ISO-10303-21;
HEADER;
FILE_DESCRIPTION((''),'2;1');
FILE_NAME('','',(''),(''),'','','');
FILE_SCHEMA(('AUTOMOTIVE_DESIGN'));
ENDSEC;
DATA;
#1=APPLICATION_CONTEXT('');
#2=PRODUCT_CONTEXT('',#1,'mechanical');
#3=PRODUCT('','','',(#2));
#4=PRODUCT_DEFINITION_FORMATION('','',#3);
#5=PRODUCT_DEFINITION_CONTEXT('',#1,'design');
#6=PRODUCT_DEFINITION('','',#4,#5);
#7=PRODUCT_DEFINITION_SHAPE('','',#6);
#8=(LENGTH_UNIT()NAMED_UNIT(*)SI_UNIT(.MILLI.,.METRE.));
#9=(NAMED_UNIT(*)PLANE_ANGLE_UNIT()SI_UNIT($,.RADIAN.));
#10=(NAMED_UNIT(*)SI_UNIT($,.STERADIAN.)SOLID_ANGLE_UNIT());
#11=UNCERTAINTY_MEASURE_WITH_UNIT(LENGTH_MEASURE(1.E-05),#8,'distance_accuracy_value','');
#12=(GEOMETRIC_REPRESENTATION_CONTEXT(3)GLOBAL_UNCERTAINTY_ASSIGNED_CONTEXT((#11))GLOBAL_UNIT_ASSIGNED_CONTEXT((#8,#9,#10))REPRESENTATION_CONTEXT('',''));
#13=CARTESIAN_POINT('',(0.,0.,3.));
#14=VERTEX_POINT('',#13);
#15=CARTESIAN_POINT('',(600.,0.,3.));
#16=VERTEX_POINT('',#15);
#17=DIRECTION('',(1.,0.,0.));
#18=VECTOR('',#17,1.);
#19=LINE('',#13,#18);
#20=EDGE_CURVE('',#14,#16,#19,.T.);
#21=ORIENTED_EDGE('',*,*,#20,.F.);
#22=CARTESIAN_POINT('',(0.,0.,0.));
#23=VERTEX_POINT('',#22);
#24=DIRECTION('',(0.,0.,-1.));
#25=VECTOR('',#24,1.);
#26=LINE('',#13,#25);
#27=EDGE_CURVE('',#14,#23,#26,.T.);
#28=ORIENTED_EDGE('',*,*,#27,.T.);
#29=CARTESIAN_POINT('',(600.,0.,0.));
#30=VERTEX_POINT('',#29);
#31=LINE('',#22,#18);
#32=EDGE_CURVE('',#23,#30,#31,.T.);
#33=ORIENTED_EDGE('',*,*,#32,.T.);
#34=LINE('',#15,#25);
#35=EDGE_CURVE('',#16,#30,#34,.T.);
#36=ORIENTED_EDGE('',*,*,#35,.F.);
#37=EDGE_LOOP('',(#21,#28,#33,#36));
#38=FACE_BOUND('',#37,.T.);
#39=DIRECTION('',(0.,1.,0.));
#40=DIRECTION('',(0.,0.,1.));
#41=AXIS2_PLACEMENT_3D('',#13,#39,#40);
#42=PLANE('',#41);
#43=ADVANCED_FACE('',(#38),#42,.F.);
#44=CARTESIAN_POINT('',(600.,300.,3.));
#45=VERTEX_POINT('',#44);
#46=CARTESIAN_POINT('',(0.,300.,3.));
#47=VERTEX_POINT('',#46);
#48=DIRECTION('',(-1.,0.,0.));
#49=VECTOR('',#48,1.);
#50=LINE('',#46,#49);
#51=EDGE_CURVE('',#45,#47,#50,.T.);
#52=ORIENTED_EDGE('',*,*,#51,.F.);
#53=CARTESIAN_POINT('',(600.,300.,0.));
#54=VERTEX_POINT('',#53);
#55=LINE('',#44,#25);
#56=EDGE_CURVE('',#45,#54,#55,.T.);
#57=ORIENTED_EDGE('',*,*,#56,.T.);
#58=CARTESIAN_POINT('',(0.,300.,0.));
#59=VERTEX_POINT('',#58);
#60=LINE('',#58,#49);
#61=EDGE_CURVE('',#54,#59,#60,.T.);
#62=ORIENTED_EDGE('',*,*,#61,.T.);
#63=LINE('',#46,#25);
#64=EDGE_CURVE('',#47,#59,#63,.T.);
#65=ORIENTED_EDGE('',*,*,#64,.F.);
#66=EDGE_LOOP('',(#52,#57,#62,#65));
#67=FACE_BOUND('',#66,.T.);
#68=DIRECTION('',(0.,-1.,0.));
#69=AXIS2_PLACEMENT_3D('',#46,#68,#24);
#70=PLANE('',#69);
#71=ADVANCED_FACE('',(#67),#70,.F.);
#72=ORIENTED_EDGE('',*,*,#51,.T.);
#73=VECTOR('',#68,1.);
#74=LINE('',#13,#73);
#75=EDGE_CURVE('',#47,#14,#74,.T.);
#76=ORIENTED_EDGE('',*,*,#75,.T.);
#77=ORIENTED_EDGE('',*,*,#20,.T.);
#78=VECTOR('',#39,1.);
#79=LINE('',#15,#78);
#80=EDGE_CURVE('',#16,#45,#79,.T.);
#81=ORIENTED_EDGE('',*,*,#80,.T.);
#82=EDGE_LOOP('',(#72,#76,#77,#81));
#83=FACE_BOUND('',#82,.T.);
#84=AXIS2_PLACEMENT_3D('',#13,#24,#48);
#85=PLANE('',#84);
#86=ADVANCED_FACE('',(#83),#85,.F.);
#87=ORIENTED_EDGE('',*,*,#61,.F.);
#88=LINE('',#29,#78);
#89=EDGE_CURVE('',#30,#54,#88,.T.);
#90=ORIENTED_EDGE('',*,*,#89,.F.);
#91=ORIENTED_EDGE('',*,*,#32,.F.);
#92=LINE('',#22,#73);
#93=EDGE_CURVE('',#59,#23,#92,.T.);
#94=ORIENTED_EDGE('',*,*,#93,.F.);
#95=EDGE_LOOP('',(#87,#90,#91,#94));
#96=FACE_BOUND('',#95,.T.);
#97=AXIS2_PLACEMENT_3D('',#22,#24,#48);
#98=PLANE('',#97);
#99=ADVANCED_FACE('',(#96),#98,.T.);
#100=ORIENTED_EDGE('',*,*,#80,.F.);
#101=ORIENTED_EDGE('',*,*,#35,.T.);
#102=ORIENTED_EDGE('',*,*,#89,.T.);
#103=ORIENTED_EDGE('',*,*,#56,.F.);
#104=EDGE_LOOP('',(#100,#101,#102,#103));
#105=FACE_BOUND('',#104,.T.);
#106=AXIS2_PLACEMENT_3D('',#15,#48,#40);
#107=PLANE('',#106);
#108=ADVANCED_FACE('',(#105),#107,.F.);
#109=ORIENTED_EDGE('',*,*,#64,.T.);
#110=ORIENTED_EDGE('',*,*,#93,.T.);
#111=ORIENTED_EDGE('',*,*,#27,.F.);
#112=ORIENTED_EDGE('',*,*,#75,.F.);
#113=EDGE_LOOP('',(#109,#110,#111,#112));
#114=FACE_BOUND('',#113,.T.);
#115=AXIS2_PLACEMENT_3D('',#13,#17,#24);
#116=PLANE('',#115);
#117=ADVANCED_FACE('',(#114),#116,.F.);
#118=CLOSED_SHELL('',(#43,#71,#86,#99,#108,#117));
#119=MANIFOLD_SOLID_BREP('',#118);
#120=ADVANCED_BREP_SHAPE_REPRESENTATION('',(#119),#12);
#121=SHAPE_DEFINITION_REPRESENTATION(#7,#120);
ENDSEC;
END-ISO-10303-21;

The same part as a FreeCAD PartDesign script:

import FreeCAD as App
import Part
import Sketcher


def add_polygon(sketch, points):
    """Adds a closed chain of lines whose ends are joined by coincident constraints."""
    first, n = sketch.GeometryCount, len(points)
    for a, b in zip(points, points[1:] + points[:1]):
        sketch.addGeometry(Part.LineSegment(App.Vector(*a, 0), App.Vector(*b, 0)), False)
    for i in range(n):
        sketch.addConstraint(Sketcher.Constraint("Coincident", first + i, 2, first + (i + 1) % n, 1))

doc = App.newDocument("Part")
body = doc.addObject("PartDesign::Body", "Body")

# Sketch on XY plane
sketch1 = body.newObject("Sketcher::SketchObject", "Sketch")
sketch1.AttachmentSupport = (doc.getObject("XY_Plane"), [""])
sketch1.MapMode = "FlatFace"
add_polygon(sketch1, [(0, 300), (0, 0), (600, 0), (600, 300)])  # lines 0-3
sketch1.addConstraint([
    Sketcher.Constraint("Vertical", 0),
    Sketcher.Constraint("Horizontal", 1),
    Sketcher.Constraint("Vertical", 2),
    Sketcher.Constraint("Horizontal", 3),
    Sketcher.Constraint("Coincident", 0, 2, -1, 1),
    Sketcher.Constraint("DistanceX", 1, 1, 1, 2, 600.0),
    Sketcher.Constraint("DistanceY", 0, 2, 0, 1, 300.0),
])
pad1 = body.newObject("PartDesign::Pad", "Pad")
pad1.Profile = sketch1
pad1.Length = 3

doc.recompute()
